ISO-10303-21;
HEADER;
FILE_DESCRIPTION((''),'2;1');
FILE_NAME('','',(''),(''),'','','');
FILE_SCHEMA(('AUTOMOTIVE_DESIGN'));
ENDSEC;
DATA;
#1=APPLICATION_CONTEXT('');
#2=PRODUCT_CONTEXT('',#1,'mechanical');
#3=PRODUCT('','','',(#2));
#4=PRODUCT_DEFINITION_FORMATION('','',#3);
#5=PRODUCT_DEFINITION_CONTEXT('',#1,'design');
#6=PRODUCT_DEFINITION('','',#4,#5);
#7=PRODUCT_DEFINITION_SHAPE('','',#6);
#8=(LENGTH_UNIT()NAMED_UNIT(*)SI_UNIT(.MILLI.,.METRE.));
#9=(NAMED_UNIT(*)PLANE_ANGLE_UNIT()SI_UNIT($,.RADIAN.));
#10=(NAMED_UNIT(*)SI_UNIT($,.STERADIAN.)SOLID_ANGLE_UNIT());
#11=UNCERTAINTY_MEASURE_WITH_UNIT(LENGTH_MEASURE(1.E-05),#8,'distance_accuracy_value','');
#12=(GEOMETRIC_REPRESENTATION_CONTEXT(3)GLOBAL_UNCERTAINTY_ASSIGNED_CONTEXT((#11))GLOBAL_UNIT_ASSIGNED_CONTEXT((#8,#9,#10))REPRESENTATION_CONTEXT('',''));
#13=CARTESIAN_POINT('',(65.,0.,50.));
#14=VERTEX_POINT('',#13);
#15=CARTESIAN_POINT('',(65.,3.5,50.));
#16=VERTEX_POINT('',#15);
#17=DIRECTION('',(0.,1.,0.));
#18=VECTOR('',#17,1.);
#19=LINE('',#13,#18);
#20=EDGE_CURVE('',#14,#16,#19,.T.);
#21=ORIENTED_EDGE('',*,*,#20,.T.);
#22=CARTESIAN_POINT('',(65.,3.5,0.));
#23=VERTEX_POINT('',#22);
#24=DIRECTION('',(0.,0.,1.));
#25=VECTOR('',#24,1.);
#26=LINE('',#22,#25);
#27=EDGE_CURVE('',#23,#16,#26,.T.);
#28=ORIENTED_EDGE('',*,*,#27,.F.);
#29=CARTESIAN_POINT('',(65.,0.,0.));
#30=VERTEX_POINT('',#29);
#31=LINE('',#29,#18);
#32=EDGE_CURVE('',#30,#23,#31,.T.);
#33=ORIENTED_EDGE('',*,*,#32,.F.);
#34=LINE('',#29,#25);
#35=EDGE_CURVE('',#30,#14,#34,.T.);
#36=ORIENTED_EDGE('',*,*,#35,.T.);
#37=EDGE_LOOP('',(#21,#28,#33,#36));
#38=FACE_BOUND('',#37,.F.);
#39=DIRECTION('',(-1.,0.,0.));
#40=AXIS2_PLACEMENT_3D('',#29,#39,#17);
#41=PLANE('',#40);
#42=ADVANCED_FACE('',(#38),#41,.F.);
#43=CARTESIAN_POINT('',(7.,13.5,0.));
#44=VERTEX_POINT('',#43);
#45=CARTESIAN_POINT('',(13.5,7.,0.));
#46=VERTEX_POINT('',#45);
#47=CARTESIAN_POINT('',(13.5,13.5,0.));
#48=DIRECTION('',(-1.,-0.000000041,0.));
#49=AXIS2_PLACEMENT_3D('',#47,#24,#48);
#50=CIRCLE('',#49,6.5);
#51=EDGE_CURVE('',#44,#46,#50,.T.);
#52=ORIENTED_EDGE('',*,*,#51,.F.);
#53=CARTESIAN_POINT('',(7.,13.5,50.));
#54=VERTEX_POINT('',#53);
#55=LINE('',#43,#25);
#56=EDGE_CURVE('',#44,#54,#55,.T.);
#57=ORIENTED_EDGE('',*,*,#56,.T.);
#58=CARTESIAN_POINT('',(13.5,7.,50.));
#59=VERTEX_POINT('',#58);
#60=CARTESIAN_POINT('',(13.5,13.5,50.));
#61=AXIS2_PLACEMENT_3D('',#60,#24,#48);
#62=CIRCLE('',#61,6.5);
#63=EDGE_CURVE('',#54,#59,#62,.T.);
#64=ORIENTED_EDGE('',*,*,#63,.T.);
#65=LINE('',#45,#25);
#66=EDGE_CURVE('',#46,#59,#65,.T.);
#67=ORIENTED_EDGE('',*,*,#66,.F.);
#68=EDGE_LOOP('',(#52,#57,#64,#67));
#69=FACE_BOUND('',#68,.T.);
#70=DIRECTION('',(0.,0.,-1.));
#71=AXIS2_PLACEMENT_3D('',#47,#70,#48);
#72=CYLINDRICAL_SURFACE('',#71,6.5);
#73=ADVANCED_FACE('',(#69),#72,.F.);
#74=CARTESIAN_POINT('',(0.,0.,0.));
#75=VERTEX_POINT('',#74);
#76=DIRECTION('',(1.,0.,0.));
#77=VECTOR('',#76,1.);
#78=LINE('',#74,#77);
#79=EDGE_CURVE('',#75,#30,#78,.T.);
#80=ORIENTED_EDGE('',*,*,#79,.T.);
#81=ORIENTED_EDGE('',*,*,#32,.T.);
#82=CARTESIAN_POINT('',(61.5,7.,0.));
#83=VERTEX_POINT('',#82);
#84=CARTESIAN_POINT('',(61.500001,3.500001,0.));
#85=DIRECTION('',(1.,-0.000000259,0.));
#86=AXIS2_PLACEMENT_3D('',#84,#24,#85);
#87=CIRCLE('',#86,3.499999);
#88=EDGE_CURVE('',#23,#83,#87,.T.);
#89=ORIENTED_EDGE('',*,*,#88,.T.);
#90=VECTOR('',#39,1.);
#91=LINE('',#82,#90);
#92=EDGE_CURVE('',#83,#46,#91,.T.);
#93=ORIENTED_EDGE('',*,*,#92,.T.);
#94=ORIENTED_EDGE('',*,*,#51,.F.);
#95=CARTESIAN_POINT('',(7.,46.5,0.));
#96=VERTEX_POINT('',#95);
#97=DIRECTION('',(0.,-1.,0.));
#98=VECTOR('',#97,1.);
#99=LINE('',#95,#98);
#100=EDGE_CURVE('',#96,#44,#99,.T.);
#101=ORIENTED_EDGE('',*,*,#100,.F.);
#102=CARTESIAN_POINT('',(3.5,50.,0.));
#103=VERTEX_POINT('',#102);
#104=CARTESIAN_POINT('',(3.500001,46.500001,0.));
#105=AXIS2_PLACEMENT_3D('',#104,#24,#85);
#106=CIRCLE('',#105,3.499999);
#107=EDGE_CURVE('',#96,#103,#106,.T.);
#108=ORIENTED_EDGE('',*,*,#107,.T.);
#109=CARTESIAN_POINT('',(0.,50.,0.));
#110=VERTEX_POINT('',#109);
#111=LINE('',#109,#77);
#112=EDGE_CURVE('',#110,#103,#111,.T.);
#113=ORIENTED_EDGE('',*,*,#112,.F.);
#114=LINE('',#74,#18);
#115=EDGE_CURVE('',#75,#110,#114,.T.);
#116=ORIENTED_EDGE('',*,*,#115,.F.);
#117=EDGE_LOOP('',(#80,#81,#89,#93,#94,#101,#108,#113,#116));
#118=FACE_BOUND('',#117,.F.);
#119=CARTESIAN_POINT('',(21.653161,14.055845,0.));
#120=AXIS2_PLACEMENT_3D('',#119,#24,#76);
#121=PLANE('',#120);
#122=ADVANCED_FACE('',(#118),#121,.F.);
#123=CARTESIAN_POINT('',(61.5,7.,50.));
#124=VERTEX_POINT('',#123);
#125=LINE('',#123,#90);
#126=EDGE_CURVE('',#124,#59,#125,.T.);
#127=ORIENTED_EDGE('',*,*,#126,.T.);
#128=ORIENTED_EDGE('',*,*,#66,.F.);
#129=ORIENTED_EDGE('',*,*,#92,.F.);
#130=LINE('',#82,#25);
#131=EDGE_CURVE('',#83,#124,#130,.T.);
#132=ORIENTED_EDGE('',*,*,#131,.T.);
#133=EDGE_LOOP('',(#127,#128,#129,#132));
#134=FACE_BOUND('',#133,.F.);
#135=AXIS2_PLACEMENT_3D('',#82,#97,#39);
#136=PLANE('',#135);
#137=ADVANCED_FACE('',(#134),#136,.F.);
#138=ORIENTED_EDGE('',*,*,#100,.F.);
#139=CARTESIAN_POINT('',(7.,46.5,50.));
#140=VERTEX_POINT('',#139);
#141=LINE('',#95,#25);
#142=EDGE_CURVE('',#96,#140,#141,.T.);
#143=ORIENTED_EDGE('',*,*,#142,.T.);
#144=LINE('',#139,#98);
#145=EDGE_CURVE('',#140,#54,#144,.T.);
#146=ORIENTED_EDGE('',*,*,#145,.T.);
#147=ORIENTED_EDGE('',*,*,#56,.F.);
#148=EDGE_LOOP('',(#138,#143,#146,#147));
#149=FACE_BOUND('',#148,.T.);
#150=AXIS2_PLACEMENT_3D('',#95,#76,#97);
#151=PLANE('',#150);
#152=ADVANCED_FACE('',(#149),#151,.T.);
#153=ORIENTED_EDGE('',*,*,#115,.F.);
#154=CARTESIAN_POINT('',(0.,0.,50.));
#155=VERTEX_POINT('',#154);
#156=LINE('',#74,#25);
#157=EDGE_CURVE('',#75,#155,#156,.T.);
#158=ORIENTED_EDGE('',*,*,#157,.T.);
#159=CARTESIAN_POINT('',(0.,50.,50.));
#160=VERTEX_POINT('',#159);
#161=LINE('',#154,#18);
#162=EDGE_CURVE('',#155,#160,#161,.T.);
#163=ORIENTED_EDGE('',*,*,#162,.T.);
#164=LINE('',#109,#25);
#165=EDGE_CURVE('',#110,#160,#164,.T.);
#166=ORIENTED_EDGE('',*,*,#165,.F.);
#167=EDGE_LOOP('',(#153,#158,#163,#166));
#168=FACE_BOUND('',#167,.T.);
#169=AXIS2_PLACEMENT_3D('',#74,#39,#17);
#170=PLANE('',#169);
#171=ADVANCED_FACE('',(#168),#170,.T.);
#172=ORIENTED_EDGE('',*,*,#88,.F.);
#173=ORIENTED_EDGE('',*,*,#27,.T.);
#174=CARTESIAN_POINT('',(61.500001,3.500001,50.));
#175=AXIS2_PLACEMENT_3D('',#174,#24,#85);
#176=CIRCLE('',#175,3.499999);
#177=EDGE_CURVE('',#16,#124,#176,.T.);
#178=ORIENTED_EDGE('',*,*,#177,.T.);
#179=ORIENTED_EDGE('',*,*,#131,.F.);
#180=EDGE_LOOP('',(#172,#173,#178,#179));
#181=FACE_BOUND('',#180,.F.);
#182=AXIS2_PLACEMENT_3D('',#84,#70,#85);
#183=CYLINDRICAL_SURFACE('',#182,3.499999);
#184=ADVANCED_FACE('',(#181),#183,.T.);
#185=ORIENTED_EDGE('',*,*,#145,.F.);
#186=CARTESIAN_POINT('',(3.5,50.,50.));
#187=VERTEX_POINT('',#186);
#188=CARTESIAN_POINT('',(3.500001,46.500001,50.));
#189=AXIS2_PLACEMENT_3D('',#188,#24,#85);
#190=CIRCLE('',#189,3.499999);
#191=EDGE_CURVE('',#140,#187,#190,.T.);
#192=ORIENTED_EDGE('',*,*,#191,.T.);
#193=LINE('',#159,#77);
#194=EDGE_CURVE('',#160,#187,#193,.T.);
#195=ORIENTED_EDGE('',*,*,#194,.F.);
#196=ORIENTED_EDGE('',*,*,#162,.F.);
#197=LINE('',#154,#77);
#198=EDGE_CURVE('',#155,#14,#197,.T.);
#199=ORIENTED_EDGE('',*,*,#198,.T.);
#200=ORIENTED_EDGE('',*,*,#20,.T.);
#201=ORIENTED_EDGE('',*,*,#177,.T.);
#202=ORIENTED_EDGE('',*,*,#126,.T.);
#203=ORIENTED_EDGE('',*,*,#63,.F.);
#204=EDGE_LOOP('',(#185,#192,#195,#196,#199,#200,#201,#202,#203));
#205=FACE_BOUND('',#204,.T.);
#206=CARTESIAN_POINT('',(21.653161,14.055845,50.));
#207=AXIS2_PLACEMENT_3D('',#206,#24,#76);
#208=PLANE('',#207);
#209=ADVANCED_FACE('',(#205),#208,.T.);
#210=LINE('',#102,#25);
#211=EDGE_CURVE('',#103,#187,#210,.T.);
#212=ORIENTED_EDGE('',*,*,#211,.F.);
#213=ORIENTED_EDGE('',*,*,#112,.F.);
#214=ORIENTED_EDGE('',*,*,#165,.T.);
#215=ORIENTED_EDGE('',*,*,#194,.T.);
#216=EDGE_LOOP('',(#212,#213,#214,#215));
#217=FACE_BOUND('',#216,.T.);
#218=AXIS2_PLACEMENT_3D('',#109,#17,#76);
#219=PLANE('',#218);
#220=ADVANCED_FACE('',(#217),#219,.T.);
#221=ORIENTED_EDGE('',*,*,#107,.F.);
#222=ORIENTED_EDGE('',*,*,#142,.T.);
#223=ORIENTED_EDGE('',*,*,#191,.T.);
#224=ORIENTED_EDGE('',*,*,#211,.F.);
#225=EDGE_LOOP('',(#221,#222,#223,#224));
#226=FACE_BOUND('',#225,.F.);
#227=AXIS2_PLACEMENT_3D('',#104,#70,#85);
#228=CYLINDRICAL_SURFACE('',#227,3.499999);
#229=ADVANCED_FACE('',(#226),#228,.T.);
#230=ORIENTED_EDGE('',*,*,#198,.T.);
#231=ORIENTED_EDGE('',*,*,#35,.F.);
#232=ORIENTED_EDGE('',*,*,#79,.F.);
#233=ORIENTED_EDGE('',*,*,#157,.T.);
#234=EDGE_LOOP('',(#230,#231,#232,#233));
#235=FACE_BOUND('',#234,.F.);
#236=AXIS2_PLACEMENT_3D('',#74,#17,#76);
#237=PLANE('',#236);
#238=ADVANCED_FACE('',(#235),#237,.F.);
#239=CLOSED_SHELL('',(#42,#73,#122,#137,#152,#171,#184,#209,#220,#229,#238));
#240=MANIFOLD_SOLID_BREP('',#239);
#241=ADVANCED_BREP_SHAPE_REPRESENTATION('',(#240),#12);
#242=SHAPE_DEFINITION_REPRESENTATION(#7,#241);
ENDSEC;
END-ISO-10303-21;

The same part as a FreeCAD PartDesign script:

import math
import FreeCAD as App
import Part
import Sketcher

V = App.Vector
Q = App.Units.Quantity

doc = App.newDocument("Part")
params = doc.addObject("Spreadsheet::Sheet", "Params")
for row, (alias, value) in enumerate([
    ("sketch1_radius", "3.499999 mm"),
    ("sketch1_radius2", "6.5 mm"),
    ("sketch1_width", "65 mm"),
    ("sketch1_width2", "48 mm"),
    ("sketch1_height", "33 mm"),
    ("pad1_length", "50 mm"),
], start=1):
    params.set(f"A{row}", alias)
    params.set(f"B{row}", "=" + value)
    params.setAlias(f"B{row}", alias)

body = doc.addObject("PartDesign::Body", "Body")

# Sketch on XY plane
sketch1 = body.newObject("Sketcher::SketchObject", "Sketch")
sketch1.AttachmentSupport = (doc.getObject("XY_Plane"), [""])
sketch1.MapMode = "FlatFace"
sketch1.addGeometry(Part.LineSegment(V(0, 0, 0), V(65, 0, 0)), False)
sketch1.addGeometry(Part.LineSegment(V(65, 0, 0), V(65, 3.5, 0)), False)
sketch1.addGeometry(Part.ArcOfCircle(Part.Circle(V(61.5, 3.5, 0), V(0, 0, 1), 3.5), math.radians(0), math.radians(90)), False)
sketch1.addGeometry(Part.LineSegment(V(61.5, 7, 0), V(13.5, 7, 0)), False)
sketch1.addGeometry(Part.ArcOfCircle(Part.Circle(V(13.5, 13.5, 0), V(0, 0, 1), 6.5), math.radians(-180), math.radians(-90)), False)
sketch1.addGeometry(Part.LineSegment(V(7, 13.5, 0), V(7, 46.5, 0)), False)
sketch1.addGeometry(Part.ArcOfCircle(Part.Circle(V(3.5, 46.5, 0), V(0, 0, 1), 3.5), math.radians(0), math.radians(90)), False)
sketch1.addGeometry(Part.LineSegment(V(3.5, 50, 0), V(0, 50, 0)), False)
sketch1.addGeometry(Part.LineSegment(V(0, 50, 0), V(0, 0, 0)), False)
sketch1.addConstraint(Sketcher.Constraint("Coincident", 0, 2, 1, 1))
sketch1.addConstraint(Sketcher.Constraint("Tangent", 1, 2, 2, 1))
sketch1.addConstraint(Sketcher.Constraint("Tangent", 2, 2, 3, 1))
sketch1.addConstraint(Sketcher.Constraint("Tangent", 3, 2, 4, 2))
sketch1.addConstraint(Sketcher.Constraint("Tangent", 4, 1, 5, 1))
sketch1.addConstraint(Sketcher.Constraint("Tangent", 5, 2, 6, 1))
sketch1.addConstraint(Sketcher.Constraint("Tangent", 6, 2, 7, 1))
sketch1.addConstraint(Sketcher.Constraint("Coincident", 7, 2, 8, 1))
sketch1.addConstraint(Sketcher.Constraint("Coincident", 8, 2, 0, 1))
sketch1.addConstraint(Sketcher.Constraint("Horizontal", 0))
sketch1.addConstraint(Sketcher.Constraint("Vertical", 1))
sketch1.addConstraint(Sketcher.Constraint("Horizontal", 3))
sketch1.addConstraint(Sketcher.Constraint("Vertical", 5))
sketch1.addConstraint(Sketcher.Constraint("Horizontal", 7))
sketch1.addConstraint(Sketcher.Constraint("Vertical", 8))
sketch1.addConstraint(Sketcher.Constraint("Coincident", 8, 2, -1, 1))
sketch1.addConstraint(Sketcher.Constraint("Equal", 2, 6))
sketch1.addConstraint(Sketcher.Constraint("Equal", 7, 1))
sketch1.addConstraint(Sketcher.Constraint("Radius", 2, Q("3.499999 mm")))
sketch1.addConstraint(Sketcher.Constraint("Radius", 4, Q("6.5 mm")))
sketch1.addConstraint(Sketcher.Constraint("DistanceX", 0, 1, 0, 2, Q("65 mm")))
sketch1.addConstraint(Sketcher.Constraint("DistanceX", 3, 2, 3, 1, Q("48 mm")))
sketch1.addConstraint(Sketcher.Constraint("DistanceY", 5, 1, 5, 2, Q("33 mm")))
sketch1.setExpression("Constraints[18]", "Params.sketch1_radius")
sketch1.setExpression("Constraints[19]", "Params.sketch1_radius2")
sketch1.setExpression("Constraints[20]", "Params.sketch1_width")
sketch1.setExpression("Constraints[21]", "Params.sketch1_width2")
sketch1.setExpression("Constraints[22]", "Params.sketch1_height")
pad1 = body.newObject("PartDesign::Pad", "Pad")
pad1.Profile = sketch1
pad1.setExpression("Length", "Params.pad1_length")

doc.recompute()
